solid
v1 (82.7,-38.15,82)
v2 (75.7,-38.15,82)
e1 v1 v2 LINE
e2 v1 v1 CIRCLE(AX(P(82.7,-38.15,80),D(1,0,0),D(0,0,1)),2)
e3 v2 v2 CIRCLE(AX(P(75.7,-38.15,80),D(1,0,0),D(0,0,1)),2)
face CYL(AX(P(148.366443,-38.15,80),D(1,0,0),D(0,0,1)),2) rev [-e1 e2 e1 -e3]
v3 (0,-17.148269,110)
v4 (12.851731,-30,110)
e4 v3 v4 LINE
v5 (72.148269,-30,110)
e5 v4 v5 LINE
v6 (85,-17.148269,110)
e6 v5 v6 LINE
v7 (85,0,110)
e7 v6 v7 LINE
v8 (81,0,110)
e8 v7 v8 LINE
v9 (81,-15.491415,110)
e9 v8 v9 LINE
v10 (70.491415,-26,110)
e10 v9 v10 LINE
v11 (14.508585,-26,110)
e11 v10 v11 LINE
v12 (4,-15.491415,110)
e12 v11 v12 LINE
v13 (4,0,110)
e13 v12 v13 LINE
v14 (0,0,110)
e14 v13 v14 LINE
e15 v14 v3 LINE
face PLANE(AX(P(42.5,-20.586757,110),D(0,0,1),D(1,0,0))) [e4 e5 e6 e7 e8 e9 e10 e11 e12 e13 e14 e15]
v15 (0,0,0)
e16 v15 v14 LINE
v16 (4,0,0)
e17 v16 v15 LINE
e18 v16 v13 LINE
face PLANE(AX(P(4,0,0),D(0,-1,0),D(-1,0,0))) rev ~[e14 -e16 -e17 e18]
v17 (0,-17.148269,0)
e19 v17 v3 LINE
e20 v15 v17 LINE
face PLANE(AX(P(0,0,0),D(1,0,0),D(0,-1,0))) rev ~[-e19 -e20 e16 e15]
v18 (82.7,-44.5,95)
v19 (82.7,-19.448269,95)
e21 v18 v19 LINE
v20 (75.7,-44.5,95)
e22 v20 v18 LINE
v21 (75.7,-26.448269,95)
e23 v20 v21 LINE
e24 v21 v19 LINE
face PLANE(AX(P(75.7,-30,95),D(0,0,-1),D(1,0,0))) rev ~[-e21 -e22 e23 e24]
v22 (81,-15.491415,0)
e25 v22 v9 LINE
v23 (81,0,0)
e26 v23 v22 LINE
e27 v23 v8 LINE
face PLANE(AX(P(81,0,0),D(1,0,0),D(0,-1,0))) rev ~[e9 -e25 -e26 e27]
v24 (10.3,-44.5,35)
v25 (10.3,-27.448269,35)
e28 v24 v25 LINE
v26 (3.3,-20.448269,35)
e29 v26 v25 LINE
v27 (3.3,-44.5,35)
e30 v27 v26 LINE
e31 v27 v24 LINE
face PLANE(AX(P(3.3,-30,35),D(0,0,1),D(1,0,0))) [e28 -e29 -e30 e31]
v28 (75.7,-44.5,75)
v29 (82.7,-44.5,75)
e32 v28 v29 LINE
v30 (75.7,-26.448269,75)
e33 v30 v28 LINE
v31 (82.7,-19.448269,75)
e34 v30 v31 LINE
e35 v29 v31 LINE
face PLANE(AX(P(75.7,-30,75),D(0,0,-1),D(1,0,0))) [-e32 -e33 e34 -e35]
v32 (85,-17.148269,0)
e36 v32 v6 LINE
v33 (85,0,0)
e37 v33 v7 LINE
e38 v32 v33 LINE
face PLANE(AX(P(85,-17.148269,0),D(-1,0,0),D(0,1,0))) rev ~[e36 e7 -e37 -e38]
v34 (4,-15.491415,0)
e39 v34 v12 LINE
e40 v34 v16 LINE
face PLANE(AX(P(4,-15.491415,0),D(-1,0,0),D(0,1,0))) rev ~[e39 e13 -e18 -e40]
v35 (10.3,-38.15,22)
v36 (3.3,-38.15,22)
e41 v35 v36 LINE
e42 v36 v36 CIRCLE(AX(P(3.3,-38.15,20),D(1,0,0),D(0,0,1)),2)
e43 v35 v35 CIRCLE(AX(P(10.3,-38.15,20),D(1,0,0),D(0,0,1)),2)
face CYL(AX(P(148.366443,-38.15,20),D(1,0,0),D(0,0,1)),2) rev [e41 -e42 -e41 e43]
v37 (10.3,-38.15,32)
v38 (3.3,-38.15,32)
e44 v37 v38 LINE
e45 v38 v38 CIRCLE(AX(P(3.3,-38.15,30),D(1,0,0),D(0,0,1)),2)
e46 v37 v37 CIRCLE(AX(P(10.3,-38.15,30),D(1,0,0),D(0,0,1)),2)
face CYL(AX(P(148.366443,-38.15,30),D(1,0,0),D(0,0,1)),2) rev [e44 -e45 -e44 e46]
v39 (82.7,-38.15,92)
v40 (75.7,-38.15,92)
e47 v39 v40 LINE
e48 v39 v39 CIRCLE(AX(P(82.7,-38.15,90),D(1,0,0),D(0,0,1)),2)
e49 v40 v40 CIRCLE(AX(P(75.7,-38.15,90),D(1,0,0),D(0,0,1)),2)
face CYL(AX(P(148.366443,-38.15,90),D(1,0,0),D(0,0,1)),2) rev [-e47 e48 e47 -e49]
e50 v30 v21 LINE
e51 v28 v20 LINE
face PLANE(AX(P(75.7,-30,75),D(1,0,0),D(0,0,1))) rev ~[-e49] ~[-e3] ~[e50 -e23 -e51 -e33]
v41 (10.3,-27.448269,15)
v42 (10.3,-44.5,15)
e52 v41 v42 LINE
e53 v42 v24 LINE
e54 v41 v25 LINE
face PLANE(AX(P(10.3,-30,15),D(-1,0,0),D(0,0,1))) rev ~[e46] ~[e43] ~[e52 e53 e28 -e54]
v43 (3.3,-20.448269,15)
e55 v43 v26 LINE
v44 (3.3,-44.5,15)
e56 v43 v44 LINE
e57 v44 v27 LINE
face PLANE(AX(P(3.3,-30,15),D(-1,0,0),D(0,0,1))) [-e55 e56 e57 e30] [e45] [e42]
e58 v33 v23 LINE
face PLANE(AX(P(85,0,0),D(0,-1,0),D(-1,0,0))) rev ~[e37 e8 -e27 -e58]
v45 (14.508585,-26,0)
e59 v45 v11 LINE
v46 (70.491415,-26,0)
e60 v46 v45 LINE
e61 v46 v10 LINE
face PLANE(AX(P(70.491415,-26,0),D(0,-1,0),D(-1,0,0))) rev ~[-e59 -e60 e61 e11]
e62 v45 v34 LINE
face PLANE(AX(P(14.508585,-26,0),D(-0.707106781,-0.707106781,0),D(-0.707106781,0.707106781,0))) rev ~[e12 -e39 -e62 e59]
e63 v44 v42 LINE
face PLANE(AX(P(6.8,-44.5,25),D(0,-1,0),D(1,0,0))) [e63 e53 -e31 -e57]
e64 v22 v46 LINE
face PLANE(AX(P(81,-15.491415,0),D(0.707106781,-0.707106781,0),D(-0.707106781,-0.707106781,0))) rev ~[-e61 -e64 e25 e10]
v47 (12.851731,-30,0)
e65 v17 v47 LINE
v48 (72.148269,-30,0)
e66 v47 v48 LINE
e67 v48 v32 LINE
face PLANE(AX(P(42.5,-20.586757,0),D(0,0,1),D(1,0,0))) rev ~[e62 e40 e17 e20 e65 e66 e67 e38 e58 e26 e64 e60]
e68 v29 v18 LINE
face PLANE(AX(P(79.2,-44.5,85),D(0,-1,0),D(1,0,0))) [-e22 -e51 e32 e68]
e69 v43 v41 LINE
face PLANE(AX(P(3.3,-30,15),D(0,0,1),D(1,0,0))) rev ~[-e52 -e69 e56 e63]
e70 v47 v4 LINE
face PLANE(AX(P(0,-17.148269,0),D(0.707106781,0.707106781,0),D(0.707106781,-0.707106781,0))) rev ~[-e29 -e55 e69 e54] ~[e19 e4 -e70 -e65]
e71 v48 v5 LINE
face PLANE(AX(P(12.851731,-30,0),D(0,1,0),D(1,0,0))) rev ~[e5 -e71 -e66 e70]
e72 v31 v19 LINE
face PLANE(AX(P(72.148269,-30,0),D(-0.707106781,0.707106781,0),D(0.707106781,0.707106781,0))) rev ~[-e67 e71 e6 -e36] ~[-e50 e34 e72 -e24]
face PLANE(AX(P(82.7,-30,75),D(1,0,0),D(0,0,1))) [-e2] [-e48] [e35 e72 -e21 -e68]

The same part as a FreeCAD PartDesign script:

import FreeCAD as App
import Part
import Sketcher

V = App.Vector
Q = App.Units.Quantity


def add_polygon(sketch, points):
    """Adds a closed chain of lines whose ends are joined by coincident constraints."""
    first, n = sketch.GeometryCount, len(points)
    for a, b in zip(points, points[1:] + points[:1]):
        sketch.addGeometry(Part.LineSegment(App.Vector(*a, 0), App.Vector(*b, 0)), False)
    for i in range(n):
        sketch.addConstraint(Sketcher.Constraint("Coincident", first + i, 2, first + (i + 1) % n, 1))

doc = App.newDocument("Part")
body = doc.addObject("PartDesign::Body", "Body")

sketch1 = doc.addObject("Sketcher::SketchObject", "Sketch")
body.addObject(sketch1)
sketch1.AttachmentSupport = (doc.XY_Plane, [""])
sketch1.MapMode = "FlatFace"
add_polygon(sketch1, [(0, 0), (0, -17.1), (12.9, -30), (72.1, -30), (85, -17.1), (85, 0), (81, 0), (81, -15.5), (70.5, -26), (14.5, -26), (4, -15.5), (4, 0)])
sketch1.addConstraint([
    Sketcher.Constraint("Vertical", 0),
    Sketcher.Constraint("Horizontal", 2),
    Sketcher.Constraint("Vertical", 4),
    Sketcher.Constraint("Horizontal", 5),
    Sketcher.Constraint("Vertical", 6),
    Sketcher.Constraint("Horizontal", 8),
    Sketcher.Constraint("Vertical", 10),
    Sketcher.Constraint("Horizontal", 11),
    Sketcher.Constraint("Coincident", 11, 2, -1, 1),
    Sketcher.Constraint("PointOnObject", 4, 2, -1),
    Sketcher.Constraint("Perpendicular", 1, 3),
    Sketcher.Constraint("Parallel", 3, 7),
    Sketcher.Constraint("Perpendicular", 7, 9),
    Sketcher.Constraint("Horizontal", 0, 2, 3, 2),
    Sketcher.Constraint("Horizontal", 6, 2, 9, 2),
    Sketcher.Constraint("Equal", 5, 11),
    Sketcher.Constraint("Equal", 1, 3),
    Sketcher.Constraint("DistanceX", 5, 2, 5, 1, Q("4 mm")),
    Sketcher.Constraint("DistanceY", 1, 2, -1, 1, Q("30 mm")),
    Sketcher.Constraint("DistanceX", -1, 1, 3, 2, Q("85 mm")),
    Sketcher.Constraint("DistanceY", 7, 2, -1, 1, Q("26 mm")),
    Sketcher.Constraint("DistanceX", 8, 2, 8, 1, Q("55.982829 mm")),
    Sketcher.Constraint("DistanceY", 0, 2, 0, 1, Q("17.148269 mm")),
])
pad1 = doc.addObject("PartDesign::Pad", "Pad")
body.addObject(pad1)
pad1.Profile = sketch1
pad1.Length = 110

sketch2 = doc.addObject("Sketcher::SketchObject", "Sketch001")
body.addObject(sketch2)
sketch2.AttachmentSupport = (doc.XZ_Plane, [""])
sketch2.MapMode = "FlatFace"
sketch2.AttachmentOffset = App.Placement(V(0, 0, 30), App.Rotation())
add_polygon(sketch2, [(3, 35), (3, 15), (10, 15), (10, 35)])
sketch2.addConstraint([
    Sketcher.Constraint("Vertical", 0),
    Sketcher.Constraint("Horizontal", 1),
    Sketcher.Constraint("Vertical", 2),
    Sketcher.Constraint("Horizontal", 3),
    Sketcher.Constraint("DistanceX", 1, 1, 1, 2, Q("7 mm")),
    Sketcher.Constraint("DistanceY", 0, 2, 0, 1, Q("20 mm")),
    Sketcher.Constraint("DistanceY", -1, 1, 0, 2, Q("15 mm")),
    Sketcher.Constraint("DistanceX", -1, 1, 0, 2, Q("3.3 mm")),
])
pad2 = doc.addObject("PartDesign::Pad", "Pad001")
body.addObject(pad2)
pad2.Profile = sketch2
pad2.Type = "UpToFirst"
pad2.Reversed = True

sketch3 = doc.addObject("Sketcher::SketchObject", "Sketch002")
body.addObject(sketch3)
sketch3.AttachmentSupport = (doc.XZ_Plane, [""])
sketch3.MapMode = "FlatFace"
sketch3.AttachmentOffset = App.Placement(V(0, 0, 30), App.Rotation())
add_polygon(sketch3, [(76, 95), (76, 75), (83, 75), (83, 95)])
sketch3.addConstraint([
    Sketcher.Constraint("Vertical", 0),
    Sketcher.Constraint("Horizontal", 1),
    Sketcher.Constraint("Vertical", 2),
    Sketcher.Constraint("Horizontal", 3),
    Sketcher.Constraint("DistanceX", 1, 1, 1, 2, Q("7 mm")),
    Sketcher.Constraint("DistanceY", 0, 2, 0, 1, Q("20 mm")),
    Sketcher.Constraint("DistanceY", -1, 1, 0, 2, Q("75 mm")),
    Sketcher.Constraint("DistanceX", -1, 1, 0, 2, Q("75.7 mm")),
])
pad3 = doc.addObject("PartDesign::Pad", "Pad002")
body.addObject(pad3)
pad3.Profile = sketch3
pad3.Type = "UpToFirst"
pad3.Reversed = True

sketch4 = doc.addObject("Sketcher::SketchObject", "Sketch003")
body.addObject(sketch4)
sketch4.AttachmentSupport = (doc.XZ_Plane, [""])
sketch4.MapMode = "FlatFace"
sketch4.AttachmentOffset = App.Placement(V(0, 0, 30), App.Rotation())
add_polygon(sketch4, [(3, 35), (3, 15), (10, 15), (10, 35)])
add_polygon(sketch4, [(76, 95), (76, 75), (83, 75), (83, 95)])
sketch4.addConstraint([
    Sketcher.Constraint("Vertical", 0),
    Sketcher.Constraint("Horizontal", 1),
    Sketcher.Constraint("Vertical", 2),
    Sketcher.Constraint("Horizontal", 3),
    Sketcher.Constraint("Vertical", 4),
    Sketcher.Constraint("Horizontal", 5),
    Sketcher.Constraint("Vertical", 6),
    Sketcher.Constraint("Horizontal", 7),
    Sketcher.Constraint("Equal", 3, 5),
    Sketcher.Constraint("Equal", 2, 4),
    Sketcher.Constraint("DistanceX", 1, 1, 1, 2, Q("7 mm")),
    Sketcher.Constraint("DistanceY", 0, 2, 0, 1, Q("20 mm")),
    Sketcher.Constraint("DistanceY", -1, 1, 0, 2, Q("15 mm")),
    Sketcher.Constraint("DistanceY", -1, 1, 4, 2, Q("75 mm")),
    Sketcher.Constraint("DistanceX", -1, 1, 0, 2, Q("3.3 mm")),
    Sketcher.Constraint("DistanceX", -1, 1, 4, 2, Q("75.7 mm")),
])
pad4 = doc.addObject("PartDesign::Pad", "Pad003")
body.addObject(pad4)
pad4.Profile = sketch4
pad4.Length = 14.5

sketch5 = doc.addObject("Sketcher::SketchObject", "Sketch004")
body.addObject(sketch5)
sketch5.AttachmentSupport = (doc.YZ_Plane, [""])
sketch5.MapMode = "FlatFace"
sketch5.AttachmentOffset = App.Placement(V(0, 0, 3.3), App.Rotation())
sketch5.addGeometry([
    Part.Circle(V(-38.1, 20, 0), V(0, 0, 1), 2),
    Part.Circle(V(-38.1, 30, 0), V(0, 0, 1), 2),
    Part.Circle(V(-38.1, 80, 0), V(0, 0, 1), 2),
    Part.Circle(V(-38.1, 90, 0), V(0, 0, 1), 2),
], False)
sketch5.addConstraint([
    Sketcher.Constraint("Equal", 0, 1),
    Sketcher.Constraint("Equal", 1, 2),
    Sketcher.Constraint("Equal", 2, 3),
    Sketcher.Constraint("Vertical", 0, 3, 1, 3),
    Sketcher.Constraint("Vertical", 1, 3, 2, 3),
    Sketcher.Constraint("Vertical", 2, 3, 3, 3),
    Sketcher.Constraint("Diameter", 0, Q("4 mm")),
    Sketcher.Constraint("DistanceY", -1, 1, 0, 3, Q("20 mm")),
    Sketcher.Constraint("DistanceY", -1, 1, 1, 3, Q("30 mm")),
    Sketcher.Constraint("DistanceY", -1, 1, 2, 3, Q("80 mm")),
    Sketcher.Constraint("DistanceY", -1, 1, 3, 3, Q("90 mm")),
    Sketcher.Constraint("DistanceX", 0, 3, -1, 1, Q("38.15 mm")),
])
pocket1 = doc.addObject("PartDesign::Pocket", "Pocket")
body.addObject(pocket1)
pocket1.Profile = sketch5
pocket1.Type = "ThroughAll"
pocket1.Midplane = True

doc.recompute()
